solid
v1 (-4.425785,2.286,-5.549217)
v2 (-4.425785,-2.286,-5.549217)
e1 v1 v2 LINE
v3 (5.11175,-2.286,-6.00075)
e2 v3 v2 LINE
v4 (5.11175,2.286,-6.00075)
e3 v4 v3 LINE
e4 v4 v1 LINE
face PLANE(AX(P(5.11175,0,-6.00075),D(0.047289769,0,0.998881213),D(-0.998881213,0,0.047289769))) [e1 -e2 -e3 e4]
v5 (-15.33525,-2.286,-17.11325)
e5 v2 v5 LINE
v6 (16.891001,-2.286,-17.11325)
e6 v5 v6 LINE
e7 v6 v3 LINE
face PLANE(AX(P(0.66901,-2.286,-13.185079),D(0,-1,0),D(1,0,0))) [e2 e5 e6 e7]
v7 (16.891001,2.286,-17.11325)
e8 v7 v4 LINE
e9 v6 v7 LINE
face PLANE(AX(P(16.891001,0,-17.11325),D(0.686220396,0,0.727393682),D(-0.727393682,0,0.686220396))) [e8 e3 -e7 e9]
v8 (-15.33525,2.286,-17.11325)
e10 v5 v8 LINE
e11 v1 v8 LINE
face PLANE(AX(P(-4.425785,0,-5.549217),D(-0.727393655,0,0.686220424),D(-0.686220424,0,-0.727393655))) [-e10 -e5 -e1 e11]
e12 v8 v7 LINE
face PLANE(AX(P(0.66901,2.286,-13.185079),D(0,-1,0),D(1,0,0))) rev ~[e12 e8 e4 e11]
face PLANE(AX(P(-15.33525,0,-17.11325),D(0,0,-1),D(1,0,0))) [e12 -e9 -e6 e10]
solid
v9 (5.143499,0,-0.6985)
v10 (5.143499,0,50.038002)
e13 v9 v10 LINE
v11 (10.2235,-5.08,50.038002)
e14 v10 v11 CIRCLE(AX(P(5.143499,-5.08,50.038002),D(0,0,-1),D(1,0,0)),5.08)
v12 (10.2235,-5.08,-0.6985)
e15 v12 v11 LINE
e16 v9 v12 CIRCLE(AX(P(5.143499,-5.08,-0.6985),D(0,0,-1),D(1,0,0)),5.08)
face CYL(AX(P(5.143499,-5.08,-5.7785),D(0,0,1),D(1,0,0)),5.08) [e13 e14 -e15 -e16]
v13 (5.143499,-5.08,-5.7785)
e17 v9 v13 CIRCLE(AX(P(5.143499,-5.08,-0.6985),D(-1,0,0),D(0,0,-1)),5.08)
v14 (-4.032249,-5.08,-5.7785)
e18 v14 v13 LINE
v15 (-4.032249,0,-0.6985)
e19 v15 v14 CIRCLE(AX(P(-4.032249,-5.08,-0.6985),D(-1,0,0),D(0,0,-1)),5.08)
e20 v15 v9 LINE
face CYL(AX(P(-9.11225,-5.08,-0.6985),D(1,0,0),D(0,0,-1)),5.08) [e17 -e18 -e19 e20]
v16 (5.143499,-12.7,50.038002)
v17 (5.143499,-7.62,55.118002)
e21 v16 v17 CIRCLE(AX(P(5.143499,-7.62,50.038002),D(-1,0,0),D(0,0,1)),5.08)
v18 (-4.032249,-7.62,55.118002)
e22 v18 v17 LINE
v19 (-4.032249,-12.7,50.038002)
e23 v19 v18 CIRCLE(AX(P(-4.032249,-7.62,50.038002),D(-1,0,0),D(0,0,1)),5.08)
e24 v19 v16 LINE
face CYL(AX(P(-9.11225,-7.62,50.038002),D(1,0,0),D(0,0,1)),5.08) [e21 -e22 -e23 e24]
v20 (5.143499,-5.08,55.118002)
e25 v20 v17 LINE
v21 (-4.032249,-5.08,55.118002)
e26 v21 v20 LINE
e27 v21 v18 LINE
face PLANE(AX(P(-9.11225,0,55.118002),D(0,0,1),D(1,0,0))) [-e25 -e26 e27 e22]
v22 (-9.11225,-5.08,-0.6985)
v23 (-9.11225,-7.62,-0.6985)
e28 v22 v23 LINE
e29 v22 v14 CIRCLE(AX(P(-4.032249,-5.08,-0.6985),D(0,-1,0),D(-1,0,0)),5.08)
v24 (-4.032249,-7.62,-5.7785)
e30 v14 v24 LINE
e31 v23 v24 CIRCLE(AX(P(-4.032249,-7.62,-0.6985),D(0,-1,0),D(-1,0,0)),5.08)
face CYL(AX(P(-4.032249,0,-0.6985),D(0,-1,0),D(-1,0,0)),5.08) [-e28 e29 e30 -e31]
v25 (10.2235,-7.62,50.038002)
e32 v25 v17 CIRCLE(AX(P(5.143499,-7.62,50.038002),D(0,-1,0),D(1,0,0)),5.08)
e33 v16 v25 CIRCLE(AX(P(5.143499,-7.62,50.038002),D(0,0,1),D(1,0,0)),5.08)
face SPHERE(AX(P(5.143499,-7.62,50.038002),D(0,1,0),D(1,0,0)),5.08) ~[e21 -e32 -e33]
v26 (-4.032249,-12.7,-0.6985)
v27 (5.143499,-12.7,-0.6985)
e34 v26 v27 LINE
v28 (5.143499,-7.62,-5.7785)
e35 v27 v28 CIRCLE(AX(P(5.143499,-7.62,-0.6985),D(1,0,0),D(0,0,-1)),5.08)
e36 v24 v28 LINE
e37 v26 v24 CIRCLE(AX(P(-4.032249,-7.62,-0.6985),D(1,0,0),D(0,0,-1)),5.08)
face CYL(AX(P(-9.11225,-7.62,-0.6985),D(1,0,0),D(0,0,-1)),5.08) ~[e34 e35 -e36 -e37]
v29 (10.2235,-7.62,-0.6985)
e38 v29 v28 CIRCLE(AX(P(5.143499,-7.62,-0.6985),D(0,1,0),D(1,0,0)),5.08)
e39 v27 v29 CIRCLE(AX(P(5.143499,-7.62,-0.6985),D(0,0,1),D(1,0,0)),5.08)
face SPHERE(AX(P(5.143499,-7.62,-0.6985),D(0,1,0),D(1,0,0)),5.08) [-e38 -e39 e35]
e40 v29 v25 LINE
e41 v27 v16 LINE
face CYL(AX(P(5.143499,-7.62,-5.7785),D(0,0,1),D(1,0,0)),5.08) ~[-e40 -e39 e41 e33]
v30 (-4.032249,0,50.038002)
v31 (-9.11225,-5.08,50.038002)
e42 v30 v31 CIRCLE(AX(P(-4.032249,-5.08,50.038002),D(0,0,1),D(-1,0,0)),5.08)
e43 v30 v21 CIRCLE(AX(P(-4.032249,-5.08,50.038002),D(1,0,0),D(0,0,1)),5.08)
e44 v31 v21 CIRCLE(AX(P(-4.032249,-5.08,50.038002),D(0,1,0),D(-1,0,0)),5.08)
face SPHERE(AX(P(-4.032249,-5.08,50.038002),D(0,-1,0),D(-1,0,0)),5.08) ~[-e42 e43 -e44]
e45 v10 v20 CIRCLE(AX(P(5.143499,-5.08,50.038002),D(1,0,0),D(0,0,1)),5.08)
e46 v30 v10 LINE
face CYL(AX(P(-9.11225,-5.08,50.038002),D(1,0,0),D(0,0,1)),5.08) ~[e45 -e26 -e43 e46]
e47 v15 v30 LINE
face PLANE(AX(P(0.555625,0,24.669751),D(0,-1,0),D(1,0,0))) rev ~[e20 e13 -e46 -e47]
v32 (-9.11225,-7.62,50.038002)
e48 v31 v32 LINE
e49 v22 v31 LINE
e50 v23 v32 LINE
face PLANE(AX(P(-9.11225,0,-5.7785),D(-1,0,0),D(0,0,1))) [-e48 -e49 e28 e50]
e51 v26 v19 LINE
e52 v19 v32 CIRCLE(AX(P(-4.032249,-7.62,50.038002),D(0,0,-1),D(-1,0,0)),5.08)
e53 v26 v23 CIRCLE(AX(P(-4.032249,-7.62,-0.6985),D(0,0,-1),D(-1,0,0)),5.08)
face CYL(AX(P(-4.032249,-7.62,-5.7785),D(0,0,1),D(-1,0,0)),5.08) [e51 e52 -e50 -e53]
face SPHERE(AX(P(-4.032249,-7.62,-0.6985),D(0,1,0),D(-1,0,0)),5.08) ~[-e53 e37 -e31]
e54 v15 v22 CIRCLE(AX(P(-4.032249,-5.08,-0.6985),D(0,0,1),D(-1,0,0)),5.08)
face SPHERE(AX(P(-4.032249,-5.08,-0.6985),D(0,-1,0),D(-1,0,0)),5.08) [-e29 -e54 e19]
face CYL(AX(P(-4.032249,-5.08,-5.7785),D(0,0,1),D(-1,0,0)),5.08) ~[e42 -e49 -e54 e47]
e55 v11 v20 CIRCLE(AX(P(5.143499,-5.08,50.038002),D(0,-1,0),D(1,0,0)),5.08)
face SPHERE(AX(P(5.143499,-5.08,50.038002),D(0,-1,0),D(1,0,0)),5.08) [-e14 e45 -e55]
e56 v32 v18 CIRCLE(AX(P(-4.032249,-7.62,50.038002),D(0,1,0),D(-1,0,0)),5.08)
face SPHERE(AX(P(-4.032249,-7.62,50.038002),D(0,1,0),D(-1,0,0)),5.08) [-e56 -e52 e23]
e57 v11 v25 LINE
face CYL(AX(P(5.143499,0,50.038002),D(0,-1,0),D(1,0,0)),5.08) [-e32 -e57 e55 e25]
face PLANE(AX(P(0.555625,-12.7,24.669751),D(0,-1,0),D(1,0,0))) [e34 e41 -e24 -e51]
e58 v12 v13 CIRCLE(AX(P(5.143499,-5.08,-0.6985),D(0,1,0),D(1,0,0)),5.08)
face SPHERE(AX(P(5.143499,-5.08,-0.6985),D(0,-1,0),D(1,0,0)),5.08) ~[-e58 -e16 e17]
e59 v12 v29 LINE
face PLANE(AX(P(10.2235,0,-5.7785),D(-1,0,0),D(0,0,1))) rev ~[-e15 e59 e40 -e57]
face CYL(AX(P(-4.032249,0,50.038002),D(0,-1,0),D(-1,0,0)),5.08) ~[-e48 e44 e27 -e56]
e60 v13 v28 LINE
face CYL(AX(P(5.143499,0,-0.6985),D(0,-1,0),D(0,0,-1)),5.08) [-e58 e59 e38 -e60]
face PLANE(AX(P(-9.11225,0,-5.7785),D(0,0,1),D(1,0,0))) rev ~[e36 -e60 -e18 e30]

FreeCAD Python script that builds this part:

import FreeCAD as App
import Part
import Sketcher
from FreeCAD import Vector
Q = App.Units.Quantity


def add_polygon(sketch, points):
    """Adds a closed chain of lines whose ends are joined by coincident constraints."""
    first, n = sketch.GeometryCount, len(points)
    for a, b in zip(points, points[1:] + points[:1]):
        sketch.addGeometry(Part.LineSegment(App.Vector(*a, 0), App.Vector(*b, 0)), False)
    for i in range(n):
        sketch.addConstraint(Sketcher.Constraint("Coincident", first + i, 2, first + (i + 1) % n, 1))

doc = App.newDocument("Part")
body = doc.addObject("PartDesign::Body", "Body")

sketch1 = doc.addObject("Sketcher::SketchObject", "Sketch")
body.addObject(sketch1)
sketch1.AttachmentSupport = (doc.XZ_Plane, [""])
sketch1.MapMode = "FlatFace"
add_polygon(sketch1, [(-9, 55), (-9, -6), (10, -6), (10, 55)])
sketch1.addConstraint([
    Sketcher.Constraint("Vertical", 0),
    Sketcher.Constraint("Horizontal", 1),
    Sketcher.Constraint("Vertical", 2),
    Sketcher.Constraint("Horizontal", 3),
    Sketcher.Constraint("DistanceY", -1, 1, 2, 2, Q("2.1700001 in")),
    Sketcher.Constraint("DistanceY", 0, 2, 0, 1, Q("2.3975001 in")),
    Sketcher.Constraint("DistanceX", -1, 1, 1, 2, Q("0.4025 in")),
    Sketcher.Constraint("DistanceX", 1, 1, 1, 2, Q("19.335749 mm")),
])
pad1 = doc.addObject("PartDesign::Pad", "Pad")
body.addObject(pad1)
pad1.Profile = sketch1
pad1.Length = Q("0.5 in")
doc.recompute()

fillet = doc.addObject("PartDesign::Fillet", "Fillet")
body.addObject(fillet)
fillet.Base = (pad1, ["Edge1"])
fillet.UseAllEdges = True
fillet.Radius = Q("0.2 in")
body2 = doc.addObject("PartDesign::Body", "Body001")

sketch2 = doc.addObject("Sketcher::SketchObject", "Sketch001")
body2.addObject(sketch2)
sketch2.AttachmentSupport = (doc.getObject("XZ_Plane001"), [""])
sketch2.MapMode = "FlatFace"
add_polygon(sketch2, [(17, -17), (5, -6), (-4, -6), (-15, -17)])
sketch2.addConstraint([
    Sketcher.Constraint("Horizontal", 3),
    Sketcher.Constraint("Perpendicular", 0, 2),
    Sketcher.Constraint("DistanceX", -1, 1, 3, 2, Q("0.665 in")),
    Sketcher.Constraint("DistanceX", 2, 2, 0, 2, Q("0.805 in")),
    Sketcher.Constraint("DistanceY", 2, 2, 0, 2, Q("0.4375 in")),
    Sketcher.Constraint("Distance", 2, Q("15.897902 mm")),
    Sketcher.Constraint("DistanceX", 3, 1, 3, 2, Q("32.226251 mm")),
    Sketcher.Constraint("DistanceY", 0, 2, -1, 1, Q("6.00075 mm")),
])
pad2 = doc.addObject("PartDesign::Pad", "Pad001")
body2.addObject(pad2)
pad2.Profile = sketch2
pad2.Length = Q("0.18 in")
pad2.Midplane = True

doc.recompute()
